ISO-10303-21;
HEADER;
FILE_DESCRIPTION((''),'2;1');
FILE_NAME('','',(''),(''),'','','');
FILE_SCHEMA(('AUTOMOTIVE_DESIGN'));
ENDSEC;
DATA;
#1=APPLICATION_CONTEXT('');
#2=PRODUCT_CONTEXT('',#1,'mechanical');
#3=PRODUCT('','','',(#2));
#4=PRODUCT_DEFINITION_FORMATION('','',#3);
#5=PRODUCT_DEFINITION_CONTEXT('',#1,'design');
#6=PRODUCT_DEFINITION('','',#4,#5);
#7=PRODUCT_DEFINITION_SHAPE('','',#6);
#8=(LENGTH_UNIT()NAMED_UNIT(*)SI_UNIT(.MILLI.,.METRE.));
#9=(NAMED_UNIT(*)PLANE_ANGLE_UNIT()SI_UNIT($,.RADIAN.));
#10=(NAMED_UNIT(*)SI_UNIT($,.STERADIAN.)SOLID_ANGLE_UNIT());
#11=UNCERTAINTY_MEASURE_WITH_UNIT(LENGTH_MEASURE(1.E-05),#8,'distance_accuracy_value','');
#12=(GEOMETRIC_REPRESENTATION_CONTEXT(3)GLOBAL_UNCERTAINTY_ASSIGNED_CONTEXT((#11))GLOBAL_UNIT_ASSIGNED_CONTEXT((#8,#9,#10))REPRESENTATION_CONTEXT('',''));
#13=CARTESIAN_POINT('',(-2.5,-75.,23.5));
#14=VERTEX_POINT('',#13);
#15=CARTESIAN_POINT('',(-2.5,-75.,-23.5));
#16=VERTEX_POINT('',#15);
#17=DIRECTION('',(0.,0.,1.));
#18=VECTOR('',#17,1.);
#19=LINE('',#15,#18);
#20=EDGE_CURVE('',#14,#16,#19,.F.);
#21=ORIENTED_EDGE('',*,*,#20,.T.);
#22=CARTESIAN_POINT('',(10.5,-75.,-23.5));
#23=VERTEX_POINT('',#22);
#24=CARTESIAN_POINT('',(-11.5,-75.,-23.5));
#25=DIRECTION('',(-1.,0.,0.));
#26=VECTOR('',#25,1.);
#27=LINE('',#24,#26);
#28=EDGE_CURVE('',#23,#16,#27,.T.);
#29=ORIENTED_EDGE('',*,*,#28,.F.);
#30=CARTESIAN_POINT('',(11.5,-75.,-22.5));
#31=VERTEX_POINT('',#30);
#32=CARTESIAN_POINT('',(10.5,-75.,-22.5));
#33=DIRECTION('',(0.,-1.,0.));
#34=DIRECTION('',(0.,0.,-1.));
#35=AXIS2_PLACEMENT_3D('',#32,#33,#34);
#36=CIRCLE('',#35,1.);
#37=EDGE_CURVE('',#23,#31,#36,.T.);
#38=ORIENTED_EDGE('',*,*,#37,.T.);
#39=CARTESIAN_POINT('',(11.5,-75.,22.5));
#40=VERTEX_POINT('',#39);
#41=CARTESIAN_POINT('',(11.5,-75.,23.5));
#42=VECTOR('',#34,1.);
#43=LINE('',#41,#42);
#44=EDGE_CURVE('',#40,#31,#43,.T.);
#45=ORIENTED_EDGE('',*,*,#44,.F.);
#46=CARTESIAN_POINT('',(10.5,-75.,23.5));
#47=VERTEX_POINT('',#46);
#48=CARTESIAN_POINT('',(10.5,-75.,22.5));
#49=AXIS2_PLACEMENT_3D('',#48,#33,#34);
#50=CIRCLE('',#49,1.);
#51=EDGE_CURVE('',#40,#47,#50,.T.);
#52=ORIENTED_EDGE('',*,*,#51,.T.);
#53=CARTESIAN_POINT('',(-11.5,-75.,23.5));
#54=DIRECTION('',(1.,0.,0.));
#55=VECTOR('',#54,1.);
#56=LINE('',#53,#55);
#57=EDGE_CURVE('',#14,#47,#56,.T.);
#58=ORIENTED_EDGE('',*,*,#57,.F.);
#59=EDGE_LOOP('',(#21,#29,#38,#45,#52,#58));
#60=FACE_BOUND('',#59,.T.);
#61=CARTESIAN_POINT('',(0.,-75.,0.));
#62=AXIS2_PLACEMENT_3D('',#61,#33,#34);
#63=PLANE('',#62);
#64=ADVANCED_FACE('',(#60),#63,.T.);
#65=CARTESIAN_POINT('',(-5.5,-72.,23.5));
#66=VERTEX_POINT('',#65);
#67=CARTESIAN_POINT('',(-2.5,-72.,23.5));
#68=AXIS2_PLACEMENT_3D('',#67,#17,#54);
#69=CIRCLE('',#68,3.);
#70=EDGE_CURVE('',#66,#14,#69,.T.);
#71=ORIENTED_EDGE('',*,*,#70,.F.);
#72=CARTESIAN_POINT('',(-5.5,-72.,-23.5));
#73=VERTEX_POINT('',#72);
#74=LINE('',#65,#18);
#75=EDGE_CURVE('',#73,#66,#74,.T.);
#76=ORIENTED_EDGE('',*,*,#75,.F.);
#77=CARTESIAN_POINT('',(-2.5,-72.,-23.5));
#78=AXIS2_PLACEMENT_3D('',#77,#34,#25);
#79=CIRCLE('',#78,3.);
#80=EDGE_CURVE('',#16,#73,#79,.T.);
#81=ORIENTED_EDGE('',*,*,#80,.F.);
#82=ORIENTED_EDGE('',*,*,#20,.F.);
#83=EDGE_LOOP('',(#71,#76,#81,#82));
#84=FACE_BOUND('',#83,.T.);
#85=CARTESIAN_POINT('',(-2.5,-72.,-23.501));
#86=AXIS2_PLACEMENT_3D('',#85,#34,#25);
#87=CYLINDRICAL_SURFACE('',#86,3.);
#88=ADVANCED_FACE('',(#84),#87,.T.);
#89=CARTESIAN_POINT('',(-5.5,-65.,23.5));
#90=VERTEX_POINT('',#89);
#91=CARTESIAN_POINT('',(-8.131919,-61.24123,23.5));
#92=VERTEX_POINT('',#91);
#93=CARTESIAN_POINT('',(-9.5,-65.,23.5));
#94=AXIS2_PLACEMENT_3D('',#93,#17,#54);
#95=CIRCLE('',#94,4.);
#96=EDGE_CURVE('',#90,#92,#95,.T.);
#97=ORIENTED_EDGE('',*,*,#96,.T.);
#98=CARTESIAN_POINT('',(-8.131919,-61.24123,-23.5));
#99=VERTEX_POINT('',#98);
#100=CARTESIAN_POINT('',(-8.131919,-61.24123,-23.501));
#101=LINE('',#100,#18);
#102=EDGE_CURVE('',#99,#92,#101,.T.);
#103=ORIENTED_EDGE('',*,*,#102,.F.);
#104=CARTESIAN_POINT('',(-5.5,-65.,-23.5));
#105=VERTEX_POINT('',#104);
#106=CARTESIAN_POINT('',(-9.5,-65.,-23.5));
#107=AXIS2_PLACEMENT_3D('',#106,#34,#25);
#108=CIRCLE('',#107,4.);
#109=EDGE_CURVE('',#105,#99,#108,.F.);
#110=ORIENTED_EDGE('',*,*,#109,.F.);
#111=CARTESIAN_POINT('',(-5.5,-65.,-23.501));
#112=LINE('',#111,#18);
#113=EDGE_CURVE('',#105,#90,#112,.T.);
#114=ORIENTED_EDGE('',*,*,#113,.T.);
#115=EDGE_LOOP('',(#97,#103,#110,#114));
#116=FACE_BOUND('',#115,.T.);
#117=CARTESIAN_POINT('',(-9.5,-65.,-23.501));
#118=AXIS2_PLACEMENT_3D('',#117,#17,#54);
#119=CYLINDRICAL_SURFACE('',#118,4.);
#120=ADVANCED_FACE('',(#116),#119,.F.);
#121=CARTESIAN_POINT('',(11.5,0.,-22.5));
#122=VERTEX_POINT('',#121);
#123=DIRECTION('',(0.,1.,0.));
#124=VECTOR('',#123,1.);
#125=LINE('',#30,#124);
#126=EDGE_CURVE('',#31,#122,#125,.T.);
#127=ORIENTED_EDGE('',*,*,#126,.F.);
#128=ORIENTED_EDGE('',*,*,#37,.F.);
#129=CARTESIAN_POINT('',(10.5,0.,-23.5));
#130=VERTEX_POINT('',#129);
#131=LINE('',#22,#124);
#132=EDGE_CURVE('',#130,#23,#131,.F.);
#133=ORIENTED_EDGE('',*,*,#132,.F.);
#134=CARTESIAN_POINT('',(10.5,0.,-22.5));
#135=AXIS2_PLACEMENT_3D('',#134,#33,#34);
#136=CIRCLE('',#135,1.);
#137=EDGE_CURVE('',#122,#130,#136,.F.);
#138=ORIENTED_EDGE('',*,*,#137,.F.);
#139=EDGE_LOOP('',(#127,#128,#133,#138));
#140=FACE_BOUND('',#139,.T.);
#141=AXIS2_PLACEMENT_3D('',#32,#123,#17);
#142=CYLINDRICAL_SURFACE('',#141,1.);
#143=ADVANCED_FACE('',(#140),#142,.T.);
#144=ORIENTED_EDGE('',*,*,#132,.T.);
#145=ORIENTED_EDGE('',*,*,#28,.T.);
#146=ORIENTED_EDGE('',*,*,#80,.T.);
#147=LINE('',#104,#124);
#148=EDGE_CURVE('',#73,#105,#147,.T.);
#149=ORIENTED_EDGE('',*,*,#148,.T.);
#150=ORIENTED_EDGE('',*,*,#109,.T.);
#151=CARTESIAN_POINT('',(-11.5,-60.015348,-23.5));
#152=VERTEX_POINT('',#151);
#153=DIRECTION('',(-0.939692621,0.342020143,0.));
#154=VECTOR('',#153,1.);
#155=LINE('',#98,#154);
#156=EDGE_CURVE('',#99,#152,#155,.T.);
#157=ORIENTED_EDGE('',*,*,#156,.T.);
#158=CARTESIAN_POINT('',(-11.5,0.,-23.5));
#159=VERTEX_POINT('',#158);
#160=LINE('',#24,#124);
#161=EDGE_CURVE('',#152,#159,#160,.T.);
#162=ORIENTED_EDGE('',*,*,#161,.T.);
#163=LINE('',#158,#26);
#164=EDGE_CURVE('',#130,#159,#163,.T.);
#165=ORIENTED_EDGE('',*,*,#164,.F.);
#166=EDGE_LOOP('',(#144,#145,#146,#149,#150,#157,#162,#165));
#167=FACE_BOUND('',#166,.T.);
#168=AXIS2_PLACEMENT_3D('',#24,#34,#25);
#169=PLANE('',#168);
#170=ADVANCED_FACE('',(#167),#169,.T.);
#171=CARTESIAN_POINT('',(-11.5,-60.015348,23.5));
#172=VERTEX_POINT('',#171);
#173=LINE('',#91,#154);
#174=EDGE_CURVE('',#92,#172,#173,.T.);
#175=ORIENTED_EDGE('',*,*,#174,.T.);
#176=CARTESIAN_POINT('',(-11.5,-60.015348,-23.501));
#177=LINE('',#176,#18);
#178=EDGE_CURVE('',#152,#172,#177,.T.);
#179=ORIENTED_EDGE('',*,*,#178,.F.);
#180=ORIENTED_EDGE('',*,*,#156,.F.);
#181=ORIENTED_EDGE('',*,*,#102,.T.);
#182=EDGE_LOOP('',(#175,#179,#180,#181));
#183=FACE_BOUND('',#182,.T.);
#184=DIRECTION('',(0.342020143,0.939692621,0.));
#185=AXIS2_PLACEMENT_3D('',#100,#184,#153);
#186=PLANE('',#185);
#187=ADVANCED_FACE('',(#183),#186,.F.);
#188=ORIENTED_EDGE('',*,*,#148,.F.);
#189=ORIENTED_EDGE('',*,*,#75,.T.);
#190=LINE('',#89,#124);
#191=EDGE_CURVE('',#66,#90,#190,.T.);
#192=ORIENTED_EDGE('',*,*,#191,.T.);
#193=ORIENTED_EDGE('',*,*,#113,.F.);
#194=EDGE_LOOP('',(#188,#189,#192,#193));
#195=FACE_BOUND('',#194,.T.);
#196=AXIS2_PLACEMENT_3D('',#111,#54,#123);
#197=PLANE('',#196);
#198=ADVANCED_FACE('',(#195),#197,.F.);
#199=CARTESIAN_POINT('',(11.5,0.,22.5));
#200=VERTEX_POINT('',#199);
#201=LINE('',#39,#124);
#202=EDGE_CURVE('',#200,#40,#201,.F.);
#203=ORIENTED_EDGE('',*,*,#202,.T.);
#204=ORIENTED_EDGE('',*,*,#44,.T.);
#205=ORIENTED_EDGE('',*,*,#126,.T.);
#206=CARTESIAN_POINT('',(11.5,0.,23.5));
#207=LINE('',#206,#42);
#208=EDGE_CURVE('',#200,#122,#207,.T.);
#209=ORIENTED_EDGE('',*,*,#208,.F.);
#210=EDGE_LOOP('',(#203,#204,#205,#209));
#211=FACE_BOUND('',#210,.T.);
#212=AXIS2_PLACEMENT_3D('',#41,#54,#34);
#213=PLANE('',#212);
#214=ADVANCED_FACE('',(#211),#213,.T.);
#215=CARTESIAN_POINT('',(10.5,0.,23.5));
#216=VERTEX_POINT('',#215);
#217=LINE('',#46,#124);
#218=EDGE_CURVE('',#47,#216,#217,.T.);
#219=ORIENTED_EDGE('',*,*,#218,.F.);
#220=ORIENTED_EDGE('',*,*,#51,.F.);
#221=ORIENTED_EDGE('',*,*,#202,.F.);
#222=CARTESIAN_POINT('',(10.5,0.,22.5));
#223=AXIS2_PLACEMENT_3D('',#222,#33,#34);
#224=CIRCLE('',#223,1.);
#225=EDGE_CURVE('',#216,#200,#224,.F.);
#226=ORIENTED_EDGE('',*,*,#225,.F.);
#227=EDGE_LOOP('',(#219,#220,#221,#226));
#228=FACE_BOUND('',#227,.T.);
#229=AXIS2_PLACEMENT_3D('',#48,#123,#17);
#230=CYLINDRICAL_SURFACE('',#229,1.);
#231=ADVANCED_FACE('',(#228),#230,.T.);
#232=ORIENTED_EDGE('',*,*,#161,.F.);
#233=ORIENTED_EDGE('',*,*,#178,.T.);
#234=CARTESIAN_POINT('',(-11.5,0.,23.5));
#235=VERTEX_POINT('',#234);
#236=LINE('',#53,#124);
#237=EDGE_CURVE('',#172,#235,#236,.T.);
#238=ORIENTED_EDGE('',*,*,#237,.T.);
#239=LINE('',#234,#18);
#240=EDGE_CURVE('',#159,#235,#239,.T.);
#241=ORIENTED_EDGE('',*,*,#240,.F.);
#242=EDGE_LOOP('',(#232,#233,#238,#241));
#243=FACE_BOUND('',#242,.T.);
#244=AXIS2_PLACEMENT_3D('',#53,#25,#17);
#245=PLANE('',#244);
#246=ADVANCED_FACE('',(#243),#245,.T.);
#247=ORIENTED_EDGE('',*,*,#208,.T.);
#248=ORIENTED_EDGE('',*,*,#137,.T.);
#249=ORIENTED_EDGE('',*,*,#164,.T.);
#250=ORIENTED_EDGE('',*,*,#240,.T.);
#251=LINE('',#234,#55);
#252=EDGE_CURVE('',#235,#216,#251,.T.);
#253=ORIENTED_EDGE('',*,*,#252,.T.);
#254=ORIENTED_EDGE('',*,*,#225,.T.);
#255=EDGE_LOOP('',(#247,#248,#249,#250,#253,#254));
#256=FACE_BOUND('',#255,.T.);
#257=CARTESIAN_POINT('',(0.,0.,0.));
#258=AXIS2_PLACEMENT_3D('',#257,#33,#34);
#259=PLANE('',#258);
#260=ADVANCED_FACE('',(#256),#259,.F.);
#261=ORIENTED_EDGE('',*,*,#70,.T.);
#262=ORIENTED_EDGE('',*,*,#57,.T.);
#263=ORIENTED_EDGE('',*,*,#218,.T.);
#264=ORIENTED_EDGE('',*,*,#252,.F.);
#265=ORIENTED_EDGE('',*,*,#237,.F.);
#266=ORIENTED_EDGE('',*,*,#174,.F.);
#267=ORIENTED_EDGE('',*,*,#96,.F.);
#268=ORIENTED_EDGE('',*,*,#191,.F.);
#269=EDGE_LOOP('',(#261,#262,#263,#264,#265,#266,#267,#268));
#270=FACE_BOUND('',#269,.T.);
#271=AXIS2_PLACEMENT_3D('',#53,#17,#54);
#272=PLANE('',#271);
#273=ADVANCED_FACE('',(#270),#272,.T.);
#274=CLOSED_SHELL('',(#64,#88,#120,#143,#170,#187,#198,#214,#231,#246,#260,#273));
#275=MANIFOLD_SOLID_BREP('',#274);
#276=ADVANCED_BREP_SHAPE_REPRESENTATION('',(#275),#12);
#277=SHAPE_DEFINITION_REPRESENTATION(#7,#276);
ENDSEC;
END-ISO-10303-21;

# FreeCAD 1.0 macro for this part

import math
import FreeCAD as App
import Part
import Sketcher

V = App.Vector
Q = App.Units.Quantity


def edges_at(feature, points):
    """Names of the edges that pass closest to the given points."""
    edges = feature.Shape.Edges
    near = lambda p: min(range(len(edges)), key=lambda i: edges[i].distToShape(Part.Vertex(*p))[0])
    return sorted({f"Edge{near(p) + 1}" for p in points})

doc = App.newDocument("Part")
params = doc.addObject("Spreadsheet::Sheet", "Params")
for row, (alias, value) in enumerate([
    ("sketch1_width", "23 mm"),
    ("sketch1_height", "47 mm"),
    ("pad1_length", "75 mm"),
    ("sketch2_radius", "4 mm"),
    ("sketch2_width", "6 mm"),
    ("sketch2_height", "10 mm"),
    ("fillet_radius", "3 mm"),
    ("fillet2_radius", "1 mm"),
], start=1):
    params.set(f"A{row}", alias)
    params.set(f"B{row}", "=" + value)
    params.setAlias(f"B{row}", alias)

body = doc.addObject("PartDesign::Body", "Body")

sketch1 = body.newObject("Sketcher::SketchObject", "Sketch")
sketch1.AttachmentSupport = (doc.getObject("XZ_Plane"), [""])
sketch1.MapMode = "FlatFace"
sketch1.addGeometry([
    Part.LineSegment(V(-12, -24, 0), V(-12, 24, 0)),
    Part.LineSegment(V(-12, 24, 0), V(12, 24, 0)),
    Part.LineSegment(V(12, 24, 0), V(12, -24, 0)),
    Part.LineSegment(V(12, -24, 0), V(-12, -24, 0)),
], False)
sketch1.addConstraint([
    Sketcher.Constraint("Coincident", 0, 2, 1, 1),
    Sketcher.Constraint("Coincident", 1, 2, 2, 1),
    Sketcher.Constraint("Coincident", 2, 2, 3, 1),
    Sketcher.Constraint("Coincident", 3, 2, 0, 1),
    Sketcher.Constraint("Vertical", 0),
    Sketcher.Constraint("Horizontal", 1),
    Sketcher.Constraint("Vertical", 2),
    Sketcher.Constraint("Horizontal", 3),
    Sketcher.Constraint("Symmetric", 0, 2, 2, 2, -1, 1),
    Sketcher.Constraint("DistanceX", 1, 1, 1, 2, 23.0),
    Sketcher.Constraint("DistanceY", 0, 1, 0, 2, 47.0),
])
sketch1.setExpression("Constraints[9]", "Params.sketch1_width")
sketch1.setExpression("Constraints[10]", "Params.sketch1_height")
pad1 = body.newObject("PartDesign::Pad", "Pad")
pad1.Profile = sketch1
pad1.setExpression("Length", "Params.pad1_length")

sketch2 = body.newObject("Sketcher::SketchObject", "Sketch001")
sketch2.AttachmentSupport = (doc.getObject("XY_Plane"), [""])
sketch2.MapMode = "FlatFace"
sketch2.AttachmentOffset = App.Placement(V(0, 0, 23.5), App.Rotation())
sketch2.addGeometry([
    Part.LineSegment(V(-8.1, -61.2, 0), V(-11.5, -60, 0)),
    Part.LineSegment(V(-11.5, -60, 0), V(-11.5, -75, 0)),
    Part.LineSegment(V(-11.5, -75, 0), V(-5.5, -75, 0)),
    Part.LineSegment(V(-5.5, -75, 0), V(-5.5, -65, 0)),
    Part.ArcOfCircle(Part.Circle(V(-9.5, -65, 0), V(0, 0, 1), 4), math.radians(0), math.radians(70)),
], False)
sketch2.addConstraint([
    Sketcher.Constraint("Coincident", 0, 2, 1, 1),
    Sketcher.Constraint("Coincident", 1, 2, 2, 1),
    Sketcher.Constraint("Coincident", 2, 2, 3, 1),
    Sketcher.Constraint("Tangent", 3, 2, 4, 1),
    Sketcher.Constraint("Tangent", 4, 2, 0, 1),
    Sketcher.Constraint("Vertical", 1),
    Sketcher.Constraint("Horizontal", 2),
    Sketcher.Constraint("Vertical", 3),
    Sketcher.Constraint("Radius", 4, 4.0),
    Sketcher.Constraint("DistanceX", 2, 1, 2, 2, 6.0),
    Sketcher.Constraint("DistanceY", 3, 1, 3, 2, 10.0),
    Sketcher.Constraint("Angle", 0, Q("160 deg")),
    Sketcher.Constraint("DistanceY", 4, 3, -1, 1, 65.0),
    Sketcher.Constraint("DistanceX", 4, 3, -1, 1, 9.5),
])
sketch2.setExpression("Constraints[8]", "Params.sketch2_radius")
sketch2.setExpression("Constraints[9]", "Params.sketch2_width")
sketch2.setExpression("Constraints[10]", "Params.sketch2_height")
pocket1 = body.newObject("PartDesign::Pocket", "Pocket")
pocket1.Profile = sketch2
pocket1.Type = "UpToFirst"
doc.recompute()

fillet = body.newObject("PartDesign::Fillet", "Fillet")
fillet.Base = (pocket1, edges_at(pocket1, [(-5.5, -75, 0)]))
fillet.setExpression("Radius", "Params.fillet_radius")
doc.recompute()

fillet2 = body.newObject("PartDesign::Fillet", "Fillet001")
fillet2.Base = (fillet, edges_at(fillet, [(11.5, -37.5, 23.5), (11.5, -37.5, -23.5)]))
fillet2.setExpression("Radius", "Params.fillet2_radius")

doc.recompute()
